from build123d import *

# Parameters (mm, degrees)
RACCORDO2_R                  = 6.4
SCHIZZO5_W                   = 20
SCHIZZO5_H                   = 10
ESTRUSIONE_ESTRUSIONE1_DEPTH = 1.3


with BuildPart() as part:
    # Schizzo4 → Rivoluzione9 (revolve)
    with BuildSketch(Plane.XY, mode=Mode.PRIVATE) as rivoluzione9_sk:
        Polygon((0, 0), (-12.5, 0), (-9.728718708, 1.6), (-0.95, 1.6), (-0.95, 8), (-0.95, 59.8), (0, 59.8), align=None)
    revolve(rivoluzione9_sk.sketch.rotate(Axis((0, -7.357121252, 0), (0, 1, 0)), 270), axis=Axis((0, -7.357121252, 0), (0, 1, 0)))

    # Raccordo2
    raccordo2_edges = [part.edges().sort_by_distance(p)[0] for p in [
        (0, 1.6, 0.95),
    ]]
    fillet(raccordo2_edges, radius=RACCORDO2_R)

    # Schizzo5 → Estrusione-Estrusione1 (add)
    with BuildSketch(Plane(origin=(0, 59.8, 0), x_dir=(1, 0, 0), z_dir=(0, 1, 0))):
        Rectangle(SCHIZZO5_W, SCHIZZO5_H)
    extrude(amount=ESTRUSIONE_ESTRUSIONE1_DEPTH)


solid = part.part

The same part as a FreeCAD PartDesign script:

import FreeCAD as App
import Part
import Sketcher
Q = App.Units.Quantity


def edges_at(feature, points):
    """Names of the edges that pass closest to the given points."""
    edges = feature.Shape.Edges
    near = lambda p: min(range(len(edges)), key=lambda i: edges[i].distToShape(Part.Vertex(*p))[0])
    return sorted({f"Edge{near(p) + 1}" for p in points})

doc = App.newDocument("Part")
body = doc.addObject("PartDesign::Body", "Body")

sketch1 = body.newObject("Sketcher::SketchObject", "Sketch")
sketch1.AttachmentSupport = (doc.getObject("XY_Plane"), [""])
sketch1.MapMode = "FlatFace"
sketch1.addGeometry([
    Part.LineSegment(App.Vector(-12.5, 0, 0), App.Vector(0, 0, 0)),
    Part.LineSegment(App.Vector(0, 0, 0), App.Vector(0, 59.8, 0)),
    Part.LineSegment(App.Vector(0, 59.8, 0), App.Vector(-0.95, 59.8, 0)),
    Part.LineSegment(App.Vector(-0.95, 59.8, 0), App.Vector(-0.95, 1.6, 0)),
    Part.LineSegment(App.Vector(-0.95, 1.6, 0), App.Vector(-9.728719, 1.6, 0)),
    Part.LineSegment(App.Vector(-9.728719, 1.6, 0), App.Vector(-12.5, 0, 0)),
], False)
sketch1.addConstraint([
    Sketcher.Constraint("Coincident", 0, 2, 1, 1),
    Sketcher.Constraint("Coincident", 1, 2, 2, 1),
    Sketcher.Constraint("Coincident", 2, 2, 3, 1),
    Sketcher.Constraint("Coincident", 3, 2, 4, 1),
    Sketcher.Constraint("Coincident", 4, 2, 5, 1),
    Sketcher.Constraint("Coincident", 5, 2, 0, 1),
    Sketcher.Constraint("Horizontal", 0),
    Sketcher.Constraint("Vertical", 1),
    Sketcher.Constraint("Horizontal", 2),
    Sketcher.Constraint("Vertical", 3),
    Sketcher.Constraint("Horizontal", 4),
    Sketcher.Constraint("Coincident", 0, 2, -1, 1),
    Sketcher.Constraint("Angle", 5, Q("-150 deg")),
    Sketcher.Constraint("DistanceX", 0, 1, 0, 2, Q("12.5 mm")),
    Sketcher.Constraint("DistanceY", 1, 1, 1, 2, Q("59.8 mm")),
    Sketcher.Constraint("DistanceY", 3, 2, 3, 1, Q("58.2 mm")),
    Sketcher.Constraint("DistanceX", 2, 2, 2, 1, Q("0.95 mm")),
])
revolution = body.newObject("PartDesign::Revolution", "Revolution")
revolution.Profile = sketch1
revolution.ReferenceAxis = (sketch1, ["V_Axis"])
revolution.Angle = 360
doc.recompute()

fillet = body.newObject("PartDesign::Fillet", "Fillet")
fillet.Base = (revolution, edges_at(revolution, [(0, 1.6, 0.95)]))
fillet.Radius = 6.4

sketch2 = body.newObject("Sketcher::SketchObject", "Sketch001")
sketch2.AttachmentSupport = (doc.getObject("XZ_Plane"), [""])
sketch2.MapMode = "FlatFace"
sketch2.AttachmentOffset = App.Placement(App.Vector(0, 0, -59.8), App.Rotation())
sketch2.addGeometry([
    Part.LineSegment(App.Vector(-10, -5, 0), App.Vector(-10, 5, 0)),
    Part.LineSegment(App.Vector(-10, 5, 0), App.Vector(10, 5, 0)),
    Part.LineSegment(App.Vector(10, 5, 0), App.Vector(10, -5, 0)),
    Part.LineSegment(App.Vector(10, -5, 0), App.Vector(-10, -5, 0)),
], False)
sketch2.addConstraint([
    Sketcher.Constraint("Coincident", 0, 2, 1, 1),
    Sketcher.Constraint("Coincident", 1, 2, 2, 1),
    Sketcher.Constraint("Coincident", 2, 2, 3, 1),
    Sketcher.Constraint("Coincident", 3, 2, 0, 1),
    Sketcher.Constraint("Vertical", 0),
    Sketcher.Constraint("Horizontal", 1),
    Sketcher.Constraint("Vertical", 2),
    Sketcher.Constraint("Horizontal", 3),
    Sketcher.Constraint("Symmetric", 0, 2, 2, 2, -1, 1),
    Sketcher.Constraint("DistanceX", 1, 1, 1, 2, Q("20 mm")),
    Sketcher.Constraint("DistanceY", 0, 1, 0, 2, Q("10 mm")),
])
pad1 = body.newObject("PartDesign::Pad", "Pad")
pad1.Profile = sketch2
pad1.Length = 1.3
pad1.Reversed = True

doc.recompute()
